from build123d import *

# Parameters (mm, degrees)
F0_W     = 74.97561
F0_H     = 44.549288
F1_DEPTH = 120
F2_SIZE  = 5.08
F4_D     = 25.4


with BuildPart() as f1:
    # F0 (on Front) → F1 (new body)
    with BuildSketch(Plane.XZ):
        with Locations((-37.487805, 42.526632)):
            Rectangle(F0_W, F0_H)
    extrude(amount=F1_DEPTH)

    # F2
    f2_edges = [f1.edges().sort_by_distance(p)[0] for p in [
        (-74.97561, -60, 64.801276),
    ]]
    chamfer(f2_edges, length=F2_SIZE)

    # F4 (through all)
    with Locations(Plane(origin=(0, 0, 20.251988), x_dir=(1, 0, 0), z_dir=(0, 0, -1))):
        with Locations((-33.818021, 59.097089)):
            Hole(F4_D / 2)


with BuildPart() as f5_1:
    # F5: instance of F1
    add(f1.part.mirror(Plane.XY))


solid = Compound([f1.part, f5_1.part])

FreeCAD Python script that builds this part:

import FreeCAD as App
import Part
import Sketcher
from FreeCAD import Vector
Q = App.Units.Quantity


def edges_at(feature, points):
    """Names of the edges that pass closest to the given points."""
    edges = feature.Shape.Edges
    near = lambda p: min(range(len(edges)), key=lambda i: edges[i].distToShape(Part.Vertex(*p))[0])
    return sorted({f"Edge{near(p) + 1}" for p in points})

doc = App.newDocument("Part")
body = doc.addObject("PartDesign::Body", "Body")

# Sketch on XZ plane
sketch1 = doc.addObject("Sketcher::SketchObject", "Sketch")
body.addObject(sketch1)
sketch1.AttachmentSupport = (doc.XZ_Plane, [""])
sketch1.MapMode = "FlatFace"
sketch1.addGeometry(Part.LineSegment(Vector(-75, 65, 0), Vector(-75, 20, 0)), False)
sketch1.addGeometry(Part.LineSegment(Vector(-75, 20, 0), Vector(0, 20, 0)), False)
sketch1.addGeometry(Part.LineSegment(Vector(0, 20, 0), Vector(0, 65, 0)), False)
sketch1.addGeometry(Part.LineSegment(Vector(0, 65, 0), Vector(-75, 65, 0)), False)
sketch1.addConstraint(Sketcher.Constraint("Coincident", 0, 2, 1, 1))
sketch1.addConstraint(Sketcher.Constraint("Coincident", 1, 2, 2, 1))
sketch1.addConstraint(Sketcher.Constraint("Coincident", 2, 2, 3, 1))
sketch1.addConstraint(Sketcher.Constraint("Coincident", 3, 2, 0, 1))
sketch1.addConstraint(Sketcher.Constraint("Vertical", 0))
sketch1.addConstraint(Sketcher.Constraint("Horizontal", 1))
sketch1.addConstraint(Sketcher.Constraint("Vertical", 2))
sketch1.addConstraint(Sketcher.Constraint("Horizontal", 3))
sketch1.addConstraint(Sketcher.Constraint("PointOnObject", 1, 2, -2))
sketch1.addConstraint(Sketcher.Constraint("DistanceX", 1, 1, 1, 2, 74.97561))
sketch1.addConstraint(Sketcher.Constraint("DistanceY", 0, 2, 0, 1, 44.549288))
sketch1.addConstraint(Sketcher.Constraint("DistanceY", -1, 1, 0, 2, 20.251988))
pad1 = doc.addObject("PartDesign::Pad", "Pad")
body.addObject(pad1)
pad1.Profile = sketch1
pad1.Length = 120
doc.recompute()

chamfer = doc.addObject("PartDesign::Chamfer", "Chamfer")
body.addObject(chamfer)
chamfer.Base = (pad1, edges_at(pad1, [(-74.976, -60, 64.801)]))
chamfer.Size = Q("0.2 in")

# Sketch on XY plane
sketch2 = doc.addObject("Sketcher::SketchObject", "Sketch001")
body.addObject(sketch2)
sketch2.AttachmentSupport = (doc.XY_Plane, [""])
sketch2.MapMode = "FlatFace"
sketch2.AttachmentOffset = App.Placement(Vector(0, 0, 20.251988), App.Rotation())
sketch2.addGeometry(Part.Circle(Vector(-34, -59, 0), Vector(0, 0, 1), 13), False)
sketch2.addConstraint(Sketcher.Constraint("Diameter", 0, Q("1 in")))
sketch2.addConstraint(Sketcher.Constraint("DistanceX", 0, 3, -1, 1, 33.818021))
sketch2.addConstraint(Sketcher.Constraint("DistanceY", 0, 3, -1, 1, 59.097089))
doc.recompute()
hole = doc.addObject("PartDesign::Hole", "Hole")
body.addObject(hole)
hole.Profile = sketch2
hole.ThreadType = "None"
hole.Diameter = Q("1 in")
hole.DepthType = "ThroughAll"
hole.Reversed = True
body2 = doc.addObject("PartDesign::Body", "Body001")
doc.recompute()

mirroring = doc.addObject("Part::Mirroring", "Mirroring")
mirroring.Source = body
mirroring.Base = Vector(0, 0, 0)
mirroring.Normal = Vector(0, 0, 1)
body2.BaseFeature = mirroring
doc.recompute()
mirroring.Visibility = False

doc.recompute()
